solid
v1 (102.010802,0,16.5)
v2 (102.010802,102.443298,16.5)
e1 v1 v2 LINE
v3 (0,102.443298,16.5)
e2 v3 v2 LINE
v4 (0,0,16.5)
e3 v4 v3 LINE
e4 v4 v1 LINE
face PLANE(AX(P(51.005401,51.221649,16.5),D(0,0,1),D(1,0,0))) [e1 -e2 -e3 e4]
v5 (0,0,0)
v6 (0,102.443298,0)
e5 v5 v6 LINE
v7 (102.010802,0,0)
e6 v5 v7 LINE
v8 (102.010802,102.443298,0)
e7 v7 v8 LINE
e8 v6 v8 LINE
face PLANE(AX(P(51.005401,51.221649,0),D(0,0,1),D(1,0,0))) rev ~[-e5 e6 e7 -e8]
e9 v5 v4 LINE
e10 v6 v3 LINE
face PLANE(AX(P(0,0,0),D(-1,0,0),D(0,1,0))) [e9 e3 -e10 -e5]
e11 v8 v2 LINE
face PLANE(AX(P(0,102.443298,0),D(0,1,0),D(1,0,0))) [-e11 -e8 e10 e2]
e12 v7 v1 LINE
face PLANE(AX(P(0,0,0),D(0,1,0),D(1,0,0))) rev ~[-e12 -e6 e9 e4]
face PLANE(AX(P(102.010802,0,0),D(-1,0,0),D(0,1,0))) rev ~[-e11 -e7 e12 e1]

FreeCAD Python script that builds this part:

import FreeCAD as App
import Part
import Sketcher
from FreeCAD import Vector


def add_polygon(sketch, points):
    """Adds a closed chain of lines whose ends are joined by coincident constraints."""
    first, n = sketch.GeometryCount, len(points)
    for a, b in zip(points, points[1:] + points[:1]):
        sketch.addGeometry(Part.LineSegment(App.Vector(*a, 0), App.Vector(*b, 0)), False)
    for i in range(n):
        sketch.addConstraint(Sketcher.Constraint("Coincident", first + i, 2, first + (i + 1) % n, 1))

doc = App.newDocument("Part")
body = doc.addObject("PartDesign::Body", "Body")

# Sketch on XY plane
sketch1 = body.newObject("Sketcher::SketchObject", "Sketch")
sketch1.AttachmentSupport = (doc.getObject("XY_Plane"), [""])
sketch1.MapMode = "FlatFace"
add_polygon(sketch1, [(0, 102), (0, 0), (102, 0), (102, 102)])  # lines 0-3
sketch1.addConstraint([
    Sketcher.Constraint("Vertical", 0),
    Sketcher.Constraint("Horizontal", 1),
    Sketcher.Constraint("Vertical", 2),
    Sketcher.Constraint("Horizontal", 3),
    Sketcher.Constraint("Coincident", 0, 2, -1, 1),
    Sketcher.Constraint("DistanceY", 0, 2, 0, 1, 102.443298),
    Sketcher.Constraint("DistanceX", 1, 1, 1, 2, 102.010803),
])
pad1 = body.newObject("PartDesign::Pad", "Pad")
pad1.Profile = sketch1
pad1.Length = 16.5

doc.recompute()
